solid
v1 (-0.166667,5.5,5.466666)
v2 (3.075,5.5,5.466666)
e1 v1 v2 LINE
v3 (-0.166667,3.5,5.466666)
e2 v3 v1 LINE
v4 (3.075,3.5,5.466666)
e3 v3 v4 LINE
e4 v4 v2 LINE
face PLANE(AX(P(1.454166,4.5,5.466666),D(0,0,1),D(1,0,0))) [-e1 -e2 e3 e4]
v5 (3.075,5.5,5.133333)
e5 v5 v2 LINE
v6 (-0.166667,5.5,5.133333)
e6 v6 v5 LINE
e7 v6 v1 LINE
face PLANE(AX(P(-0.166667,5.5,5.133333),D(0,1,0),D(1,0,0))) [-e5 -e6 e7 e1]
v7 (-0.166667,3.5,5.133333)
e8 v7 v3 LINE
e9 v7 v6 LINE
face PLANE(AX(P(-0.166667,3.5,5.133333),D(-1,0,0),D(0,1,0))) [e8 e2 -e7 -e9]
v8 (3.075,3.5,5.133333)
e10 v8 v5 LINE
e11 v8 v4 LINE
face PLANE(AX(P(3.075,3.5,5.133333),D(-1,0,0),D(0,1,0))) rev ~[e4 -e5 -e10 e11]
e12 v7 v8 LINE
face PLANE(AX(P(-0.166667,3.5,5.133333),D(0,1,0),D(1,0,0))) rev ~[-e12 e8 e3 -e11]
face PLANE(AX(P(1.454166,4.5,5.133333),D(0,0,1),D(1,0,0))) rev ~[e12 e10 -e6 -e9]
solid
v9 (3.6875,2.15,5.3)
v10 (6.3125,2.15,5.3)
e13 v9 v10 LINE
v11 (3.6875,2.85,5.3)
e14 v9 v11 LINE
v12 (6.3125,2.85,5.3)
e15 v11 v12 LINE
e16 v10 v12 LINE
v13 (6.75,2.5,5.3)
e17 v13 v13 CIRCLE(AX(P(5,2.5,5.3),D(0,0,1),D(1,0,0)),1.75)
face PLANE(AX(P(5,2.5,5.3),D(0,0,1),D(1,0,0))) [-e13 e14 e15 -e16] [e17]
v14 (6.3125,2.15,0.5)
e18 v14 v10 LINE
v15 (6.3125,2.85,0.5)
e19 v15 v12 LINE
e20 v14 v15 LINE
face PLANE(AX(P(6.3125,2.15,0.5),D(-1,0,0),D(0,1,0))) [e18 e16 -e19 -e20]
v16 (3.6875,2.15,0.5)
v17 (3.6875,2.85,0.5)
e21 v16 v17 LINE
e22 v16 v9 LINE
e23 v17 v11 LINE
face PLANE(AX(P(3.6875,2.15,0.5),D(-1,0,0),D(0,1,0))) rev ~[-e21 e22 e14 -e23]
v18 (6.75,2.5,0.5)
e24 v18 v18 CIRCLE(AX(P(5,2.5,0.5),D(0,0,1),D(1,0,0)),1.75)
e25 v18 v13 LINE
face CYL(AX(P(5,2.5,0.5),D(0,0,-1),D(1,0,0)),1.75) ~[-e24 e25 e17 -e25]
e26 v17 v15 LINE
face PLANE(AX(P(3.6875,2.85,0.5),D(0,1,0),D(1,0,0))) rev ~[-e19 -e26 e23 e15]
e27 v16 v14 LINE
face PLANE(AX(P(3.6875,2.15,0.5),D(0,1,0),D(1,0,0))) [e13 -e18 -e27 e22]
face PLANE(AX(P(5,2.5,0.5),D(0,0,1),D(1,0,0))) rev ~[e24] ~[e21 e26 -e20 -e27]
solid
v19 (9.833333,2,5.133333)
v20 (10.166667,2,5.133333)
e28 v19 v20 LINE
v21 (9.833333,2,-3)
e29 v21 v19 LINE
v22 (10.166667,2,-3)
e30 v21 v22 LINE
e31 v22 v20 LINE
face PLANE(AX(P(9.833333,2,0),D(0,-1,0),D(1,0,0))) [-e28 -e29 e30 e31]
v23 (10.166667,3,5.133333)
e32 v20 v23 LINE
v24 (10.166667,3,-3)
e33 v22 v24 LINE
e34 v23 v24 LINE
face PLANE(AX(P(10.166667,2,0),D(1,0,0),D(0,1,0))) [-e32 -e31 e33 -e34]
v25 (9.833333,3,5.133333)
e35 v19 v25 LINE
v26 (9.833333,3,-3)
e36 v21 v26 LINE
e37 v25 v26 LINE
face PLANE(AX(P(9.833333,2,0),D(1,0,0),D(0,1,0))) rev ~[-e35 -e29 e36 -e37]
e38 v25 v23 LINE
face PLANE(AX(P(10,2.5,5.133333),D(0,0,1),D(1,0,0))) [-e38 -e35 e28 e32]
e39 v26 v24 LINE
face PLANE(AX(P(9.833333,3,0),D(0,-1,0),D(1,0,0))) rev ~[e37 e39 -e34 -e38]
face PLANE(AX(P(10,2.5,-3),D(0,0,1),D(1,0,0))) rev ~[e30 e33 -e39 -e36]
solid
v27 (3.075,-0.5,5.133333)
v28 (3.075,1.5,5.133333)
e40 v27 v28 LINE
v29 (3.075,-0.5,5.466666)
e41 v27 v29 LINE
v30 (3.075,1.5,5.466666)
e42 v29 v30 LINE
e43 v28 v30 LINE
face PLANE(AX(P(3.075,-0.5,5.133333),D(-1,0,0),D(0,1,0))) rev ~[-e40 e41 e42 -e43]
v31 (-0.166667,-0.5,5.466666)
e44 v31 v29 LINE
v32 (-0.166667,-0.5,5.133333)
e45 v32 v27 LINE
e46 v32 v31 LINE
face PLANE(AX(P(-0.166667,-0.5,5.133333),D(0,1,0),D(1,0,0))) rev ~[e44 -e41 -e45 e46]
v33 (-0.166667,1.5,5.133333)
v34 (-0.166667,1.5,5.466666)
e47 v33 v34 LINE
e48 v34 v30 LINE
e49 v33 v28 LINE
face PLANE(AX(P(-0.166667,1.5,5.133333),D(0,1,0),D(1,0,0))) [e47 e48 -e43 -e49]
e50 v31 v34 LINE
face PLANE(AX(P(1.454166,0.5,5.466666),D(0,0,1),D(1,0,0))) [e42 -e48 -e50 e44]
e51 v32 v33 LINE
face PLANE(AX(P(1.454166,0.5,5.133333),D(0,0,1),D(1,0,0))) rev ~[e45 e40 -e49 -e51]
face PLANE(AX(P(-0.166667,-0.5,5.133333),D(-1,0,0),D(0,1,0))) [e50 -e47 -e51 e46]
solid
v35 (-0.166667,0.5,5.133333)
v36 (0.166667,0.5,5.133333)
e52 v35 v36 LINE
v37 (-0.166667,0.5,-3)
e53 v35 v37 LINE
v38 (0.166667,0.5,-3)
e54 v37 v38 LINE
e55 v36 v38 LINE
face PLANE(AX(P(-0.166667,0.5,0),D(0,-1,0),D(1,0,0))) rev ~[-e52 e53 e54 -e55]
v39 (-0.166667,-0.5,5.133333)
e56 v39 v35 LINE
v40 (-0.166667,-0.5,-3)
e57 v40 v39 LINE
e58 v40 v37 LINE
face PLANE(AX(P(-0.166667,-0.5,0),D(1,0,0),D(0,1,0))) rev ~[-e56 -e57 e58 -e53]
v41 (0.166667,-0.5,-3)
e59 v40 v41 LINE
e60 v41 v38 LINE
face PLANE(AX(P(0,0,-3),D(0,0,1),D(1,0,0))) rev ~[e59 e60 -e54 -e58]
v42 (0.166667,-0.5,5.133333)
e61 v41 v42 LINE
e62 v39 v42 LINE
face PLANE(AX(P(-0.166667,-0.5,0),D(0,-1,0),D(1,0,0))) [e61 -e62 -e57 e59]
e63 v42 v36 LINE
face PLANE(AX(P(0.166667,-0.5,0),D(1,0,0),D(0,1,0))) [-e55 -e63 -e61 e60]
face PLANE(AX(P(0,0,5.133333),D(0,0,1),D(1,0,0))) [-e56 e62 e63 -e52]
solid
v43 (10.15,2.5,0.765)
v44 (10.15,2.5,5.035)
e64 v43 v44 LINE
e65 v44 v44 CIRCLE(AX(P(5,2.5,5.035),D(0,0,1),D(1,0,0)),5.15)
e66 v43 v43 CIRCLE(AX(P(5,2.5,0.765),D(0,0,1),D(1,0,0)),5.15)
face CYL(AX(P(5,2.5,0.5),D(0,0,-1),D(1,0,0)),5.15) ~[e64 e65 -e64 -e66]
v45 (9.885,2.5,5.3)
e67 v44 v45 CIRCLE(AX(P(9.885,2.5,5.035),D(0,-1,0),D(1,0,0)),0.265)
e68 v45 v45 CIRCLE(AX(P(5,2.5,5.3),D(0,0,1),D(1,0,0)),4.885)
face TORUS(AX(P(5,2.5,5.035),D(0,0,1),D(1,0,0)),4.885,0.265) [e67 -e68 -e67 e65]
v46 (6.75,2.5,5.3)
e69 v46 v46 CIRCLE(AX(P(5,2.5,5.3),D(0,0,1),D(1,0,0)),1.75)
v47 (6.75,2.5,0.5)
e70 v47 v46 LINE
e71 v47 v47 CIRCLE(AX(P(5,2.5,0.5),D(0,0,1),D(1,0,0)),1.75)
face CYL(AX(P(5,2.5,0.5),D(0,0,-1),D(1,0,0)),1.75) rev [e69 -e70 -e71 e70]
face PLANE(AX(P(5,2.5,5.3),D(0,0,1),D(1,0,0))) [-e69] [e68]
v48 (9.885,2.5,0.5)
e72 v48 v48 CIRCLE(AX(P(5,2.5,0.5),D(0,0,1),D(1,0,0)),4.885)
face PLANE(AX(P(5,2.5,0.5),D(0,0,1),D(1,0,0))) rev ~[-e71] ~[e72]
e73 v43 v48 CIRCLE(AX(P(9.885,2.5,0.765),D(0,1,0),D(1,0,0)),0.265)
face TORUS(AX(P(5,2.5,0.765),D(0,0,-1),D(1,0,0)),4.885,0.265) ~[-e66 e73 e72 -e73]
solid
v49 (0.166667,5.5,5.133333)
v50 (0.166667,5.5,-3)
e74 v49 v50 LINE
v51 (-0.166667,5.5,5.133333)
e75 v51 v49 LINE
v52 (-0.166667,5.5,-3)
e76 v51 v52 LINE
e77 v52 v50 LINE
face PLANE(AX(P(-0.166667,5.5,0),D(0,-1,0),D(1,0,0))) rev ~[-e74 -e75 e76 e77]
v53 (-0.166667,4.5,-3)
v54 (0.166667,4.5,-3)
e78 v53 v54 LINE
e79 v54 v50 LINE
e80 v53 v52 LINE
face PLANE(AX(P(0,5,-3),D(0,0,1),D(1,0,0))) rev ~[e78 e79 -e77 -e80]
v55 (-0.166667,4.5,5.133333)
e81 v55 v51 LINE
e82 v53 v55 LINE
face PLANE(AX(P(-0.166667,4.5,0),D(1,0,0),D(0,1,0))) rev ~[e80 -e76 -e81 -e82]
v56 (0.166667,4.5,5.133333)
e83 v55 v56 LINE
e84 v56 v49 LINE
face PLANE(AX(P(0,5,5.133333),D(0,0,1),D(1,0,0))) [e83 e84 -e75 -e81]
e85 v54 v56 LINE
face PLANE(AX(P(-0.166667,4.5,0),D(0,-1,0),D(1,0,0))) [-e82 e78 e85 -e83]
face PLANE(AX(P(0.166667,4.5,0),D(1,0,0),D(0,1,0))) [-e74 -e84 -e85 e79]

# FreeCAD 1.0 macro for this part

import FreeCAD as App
import Part
import Sketcher
from FreeCAD import Vector


def edges_at(feature, points):
    """Names of the edges that pass closest to the given points."""
    edges = feature.Shape.Edges
    near = lambda p: min(range(len(edges)), key=lambda i: edges[i].distToShape(Part.Vertex(*p))[0])
    return sorted({f"Edge{near(p) + 1}" for p in points})

doc = App.newDocument("Part")
body = doc.addObject("PartDesign::Body", "Body")
body.AllowCompound = True

# Sketch on XY plane
sketch1 = body.newObject("Sketcher::SketchObject", "Sketch")
sketch1.AttachmentSupport = (doc.getObject("XY_Plane"), [""])
sketch1.MapMode = "FlatFace"
sketch1.addGeometry([
    Part.LineSegment(Vector(-0.166667, 5.5, 0), Vector(-0.166667, 4.5, 0)),  # 0
    Part.LineSegment(Vector(-0.166667, 4.5, 0), Vector(0.166667, 4.5, 0)),  # 1
    Part.LineSegment(Vector(0.166667, 4.5, 0), Vector(0.166667, 5.5, 0)),  # 2
    Part.LineSegment(Vector(0.166667, 5.5, 0), Vector(-0.166667, 5.5, 0)),  # 3
    Part.LineSegment(Vector(9.833333, 3, 0), Vector(9.833333, 2, 0)),  # 4
    Part.LineSegment(Vector(9.833333, 2, 0), Vector(10.166667, 2, 0)),  # 5
    Part.LineSegment(Vector(10.166667, 2, 0), Vector(10.166667, 3, 0)),  # 6
    Part.LineSegment(Vector(10.166667, 3, 0), Vector(9.833333, 3, 0)),  # 7
    Part.LineSegment(Vector(-0.166667, 0.5, 0), Vector(-0.166667, -0.5, 0)),  # 8
    Part.LineSegment(Vector(-0.166667, -0.5, 0), Vector(0.166667, -0.5, 0)),  # 9
    Part.LineSegment(Vector(0.166667, -0.5, 0), Vector(0.166667, 0.5, 0)),  # 10
    Part.LineSegment(Vector(0.166667, 0.5, 0), Vector(-0.166667, 0.5, 0)),  # 11
], False)
sketch1.addConstraint([
    Sketcher.Constraint("Coincident", 0, 2, 1, 1),
    Sketcher.Constraint("Coincident", 1, 2, 2, 1),
    Sketcher.Constraint("Coincident", 2, 2, 3, 1),
    Sketcher.Constraint("Coincident", 3, 2, 0, 1),
    Sketcher.Constraint("Coincident", 4, 2, 5, 1),
    Sketcher.Constraint("Coincident", 5, 2, 6, 1),
    Sketcher.Constraint("Coincident", 6, 2, 7, 1),
    Sketcher.Constraint("Coincident", 7, 2, 4, 1),
    Sketcher.Constraint("Coincident", 8, 2, 9, 1),
    Sketcher.Constraint("Coincident", 9, 2, 10, 1),
    Sketcher.Constraint("Coincident", 10, 2, 11, 1),
    Sketcher.Constraint("Coincident", 11, 2, 8, 1),
    Sketcher.Constraint("Vertical", 0),
    Sketcher.Constraint("Horizontal", 1),
    Sketcher.Constraint("Vertical", 2),
    Sketcher.Constraint("Horizontal", 3),
    Sketcher.Constraint("Vertical", 4),
    Sketcher.Constraint("Horizontal", 5),
    Sketcher.Constraint("Vertical", 6),
    Sketcher.Constraint("Horizontal", 7),
    Sketcher.Constraint("Vertical", 8),
    Sketcher.Constraint("Horizontal", 9),
    Sketcher.Constraint("Vertical", 10),
    Sketcher.Constraint("Horizontal", 11),
    Sketcher.Constraint("Symmetric", 8, 2, 10, 2, -1, 1),
    Sketcher.Constraint("Vertical", 3, 2, 8, 2),
    Sketcher.Constraint("Vertical", 2, 2, 9, 2),
    Sketcher.Constraint("Equal", 3, 5),
    Sketcher.Constraint("Equal", 2, 4),
    Sketcher.Constraint("Equal", 6, 8),
    Sketcher.Constraint("DistanceY", 0, 2, 0, 1, 1.0),
    Sketcher.Constraint("DistanceY", -1, 1, 4, 2, 2.0),
    Sketcher.Constraint("DistanceX", 0, 2, 4, 2, 10.0),
    Sketcher.Constraint("DistanceY", 8, 2, 0, 2, 5.0),
    Sketcher.Constraint("DistanceX", 1, 1, 1, 2, 0.333334),
])
pad1 = body.newObject("PartDesign::Pad", "Pad")
pad1.Profile = sketch1
pad1.Type = "TwoLengths"
pad1.Length = 5.133333
pad1.Length2 = 3
body2 = doc.addObject("PartDesign::Body", "Body001")

# Sketch on XY plane
sketch2 = body2.newObject("Sketcher::SketchObject", "Sketch001")
sketch2.AttachmentSupport = (doc.getObject("XY_Plane001"), [""])
sketch2.MapMode = "FlatFace"
sketch2.AttachmentOffset = App.Placement(Vector(0, 0, 0.5), App.Rotation())
sketch2.addGeometry([
    Part.Circle(Vector(5, 2.5, 0), Vector(0, 0, 1), 1.75),  # 0
    Part.LineSegment(Vector(6.3125, 2.15, 0), Vector(3.6875, 2.15, 0)),  # 1
    Part.LineSegment(Vector(3.6875, 2.15, 0), Vector(3.6875, 2.85, 0)),  # 2
    Part.LineSegment(Vector(3.6875, 2.85, 0), Vector(6.3125, 2.85, 0)),  # 3
    Part.LineSegment(Vector(6.3125, 2.85, 0), Vector(6.3125, 2.15, 0)),  # 4
], False)
sketch2.addConstraint([
    Sketcher.Constraint("Coincident", 1, 2, 2, 1),
    Sketcher.Constraint("Coincident", 2, 2, 3, 1),
    Sketcher.Constraint("Coincident", 3, 2, 4, 1),
    Sketcher.Constraint("Coincident", 4, 2, 1, 1),
    Sketcher.Constraint("Horizontal", 1),
    Sketcher.Constraint("Vertical", 2),
    Sketcher.Constraint("Horizontal", 3),
    Sketcher.Constraint("Vertical", 4),
    Sketcher.Constraint("Diameter", 0, 3.5),
    Sketcher.Constraint("DistanceY", 2, 1, 2, 2, 0.7),
    Sketcher.Constraint("DistanceX", -1, 1, 0, 3, 5.0),
    Sketcher.Constraint("DistanceY", -1, 1, 0, 3, 2.5),
    Sketcher.Constraint("DistanceX", 1, 2, 1, 1, 2.625),
    Sketcher.Constraint("DistanceY", -1, 1, 1, 2, 2.15),
    Sketcher.Constraint("DistanceX", -1, 1, 1, 2, 3.6875),
])
pad2 = body2.newObject("PartDesign::Pad", "Pad001")
pad2.Profile = sketch2
pad2.Length = 4.8
body3 = doc.addObject("PartDesign::Body", "Body002")

# Sketch on XY plane
sketch3 = body3.newObject("Sketcher::SketchObject", "Sketch002")
sketch3.AttachmentSupport = (doc.getObject("XY_Plane002"), [""])
sketch3.MapMode = "FlatFace"
sketch3.AttachmentOffset = App.Placement(Vector(0, 0, 0.5), App.Rotation())
sketch3.addGeometry([
    Part.Circle(Vector(5, 2.5, 0), Vector(0, 0, 1), 5.15),
    Part.Circle(Vector(5, 2.5, 0), Vector(0, 0, 1), 1.75),
], False)
sketch3.addConstraint([
    Sketcher.Constraint("Coincident", 1, 3, 0, 3),
    Sketcher.Constraint("Diameter", 0, 10.3),
    Sketcher.Constraint("Diameter", 1, 3.5),
    Sketcher.Constraint("DistanceX", -1, 1, 0, 3, 5.0),
    Sketcher.Constraint("DistanceY", -1, 1, 0, 3, 2.5),
])
pad3 = body3.newObject("PartDesign::Pad", "Pad002")
pad3.Profile = sketch3
pad3.Length = 4.8
doc.recompute()

fillet = body3.newObject("PartDesign::Fillet", "Fillet")
fillet.Base = (pad3, edges_at(pad3, [(-0.15, 2.5, 0.5), (-0.15, 2.5, 5.3)]))
fillet.Radius = 0.265
body4 = doc.addObject("PartDesign::Body", "Body003")
body4.AllowCompound = True

# Sketch on XY plane
sketch4 = body4.newObject("Sketcher::SketchObject", "Sketch003")
sketch4.AttachmentSupport = (doc.getObject("XY_Plane003"), [""])
sketch4.MapMode = "FlatFace"
sketch4.AttachmentOffset = App.Placement(Vector(0, 0, 5.133333), App.Rotation())
sketch4.addGeometry([
    Part.LineSegment(Vector(-0.166667, 5.5, 0), Vector(-0.166667, 3.5, 0)),  # 0
    Part.LineSegment(Vector(-0.166667, 3.5, 0), Vector(3.075, 3.5, 0)),  # 1
    Part.LineSegment(Vector(3.075, 3.5, 0), Vector(3.075, 5.5, 0)),  # 2
    Part.LineSegment(Vector(3.075, 5.5, 0), Vector(-0.166667, 5.5, 0)),  # 3
    Part.LineSegment(Vector(-0.166667, 1.5, 0), Vector(-0.166667, -0.5, 0)),  # 4
    Part.LineSegment(Vector(-0.166667, -0.5, 0), Vector(3.075, -0.5, 0)),  # 5
    Part.LineSegment(Vector(3.075, -0.5, 0), Vector(3.075, 1.5, 0)),  # 6
    Part.LineSegment(Vector(3.075, 1.5, 0), Vector(-0.166667, 1.5, 0)),  # 7
], False)
sketch4.addConstraint([
    Sketcher.Constraint("Coincident", 0, 2, 1, 1),
    Sketcher.Constraint("Coincident", 1, 2, 2, 1),
    Sketcher.Constraint("Coincident", 2, 2, 3, 1),
    Sketcher.Constraint("Coincident", 3, 2, 0, 1),
    Sketcher.Constraint("Coincident", 4, 2, 5, 1),
    Sketcher.Constraint("Coincident", 5, 2, 6, 1),
    Sketcher.Constraint("Coincident", 6, 2, 7, 1),
    Sketcher.Constraint("Coincident", 7, 2, 4, 1),
    Sketcher.Constraint("Vertical", 0),
    Sketcher.Constraint("Horizontal", 1),
    Sketcher.Constraint("Vertical", 2),
    Sketcher.Constraint("Horizontal", 3),
    Sketcher.Constraint("Vertical", 4),
    Sketcher.Constraint("Horizontal", 5),
    Sketcher.Constraint("Vertical", 6),
    Sketcher.Constraint("Horizontal", 7),
    Sketcher.Constraint("Vertical", 3, 2, 4, 2),
    Sketcher.Constraint("Vertical", 2, 2, 5, 2),
    Sketcher.Constraint("Equal", 2, 4),
    Sketcher.Constraint("DistanceY", 0, 2, 0, 1, 2.0),
    Sketcher.Constraint("DistanceY", 4, 2, 0, 2, 4.0),
    Sketcher.Constraint("DistanceY", -1, 1, 0, 2, 3.5),
    Sketcher.Constraint("DistanceX", -1, 1, 1, 2, 3.075),
    Sketcher.Constraint("DistanceX", 1, 1, 1, 2, 3.241667),
])
pad4 = body4.newObject("PartDesign::Pad", "Pad003")
pad4.Profile = sketch4
pad4.Length = 0.333333

doc.recompute()
